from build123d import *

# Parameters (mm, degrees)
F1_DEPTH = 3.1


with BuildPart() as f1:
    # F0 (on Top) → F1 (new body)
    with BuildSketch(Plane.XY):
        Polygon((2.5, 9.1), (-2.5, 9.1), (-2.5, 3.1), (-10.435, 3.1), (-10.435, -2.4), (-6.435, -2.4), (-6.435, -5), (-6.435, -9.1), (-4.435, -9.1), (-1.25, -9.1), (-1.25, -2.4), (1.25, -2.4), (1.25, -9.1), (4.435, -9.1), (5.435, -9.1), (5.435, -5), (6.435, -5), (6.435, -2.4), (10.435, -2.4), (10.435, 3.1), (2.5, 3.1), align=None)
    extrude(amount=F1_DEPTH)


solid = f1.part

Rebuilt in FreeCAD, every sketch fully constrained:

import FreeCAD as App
import Part
import Sketcher
from FreeCAD import Vector
Q = App.Units.Quantity


def add_polygon(sketch, points):
    """Adds a closed chain of lines whose ends are joined by coincident constraints."""
    first, n = sketch.GeometryCount, len(points)
    for a, b in zip(points, points[1:] + points[:1]):
        sketch.addGeometry(Part.LineSegment(App.Vector(*a, 0), App.Vector(*b, 0)), False)
    for i in range(n):
        sketch.addConstraint(Sketcher.Constraint("Coincident", first + i, 2, first + (i + 1) % n, 1))

doc = App.newDocument("Part")
body = doc.addObject("PartDesign::Body", "Body")

# Sketch on XY plane
sketch1 = doc.addObject("Sketcher::SketchObject", "Sketch")
body.addObject(sketch1)
sketch1.AttachmentSupport = (doc.XY_Plane, [""])
sketch1.MapMode = "FlatFace"
add_polygon(sketch1, [(2.5, 9.1), (-2.5, 9.1), (-2.5, 3.1), (-10.4, 3.1), (-10.4, -2.4), (-6.4, -2.4), (-6.4, -9.1), (-1.2, -9.1), (-1.2, -2.4), (1.2, -2.4), (1.2, -9.1), (5.4, -9.1), (5.4, -5), (6.4, -5), (6.4, -2.4), (10.4, -2.4), (10.4, 3.1), (2.5, 3.1)])  # lines 0-17
sketch1.addConstraint(Sketcher.Constraint("Horizontal", 0))
sketch1.addConstraint(Sketcher.Constraint("Vertical", 1))
sketch1.addConstraint(Sketcher.Constraint("Horizontal", 2))
sketch1.addConstraint(Sketcher.Constraint("Vertical", 3))
sketch1.addConstraint(Sketcher.Constraint("Horizontal", 4))
sketch1.addConstraint(Sketcher.Constraint("Vertical", 5))
sketch1.addConstraint(Sketcher.Constraint("Horizontal", 6))
sketch1.addConstraint(Sketcher.Constraint("Vertical", 7))
sketch1.addConstraint(Sketcher.Constraint("Horizontal", 8))
sketch1.addConstraint(Sketcher.Constraint("Vertical", 9))
sketch1.addConstraint(Sketcher.Constraint("Horizontal", 10))
sketch1.addConstraint(Sketcher.Constraint("Vertical", 11))
sketch1.addConstraint(Sketcher.Constraint("Horizontal", 12))
sketch1.addConstraint(Sketcher.Constraint("Vertical", 13))
sketch1.addConstraint(Sketcher.Constraint("Horizontal", 14))
sketch1.addConstraint(Sketcher.Constraint("Vertical", 15))
sketch1.addConstraint(Sketcher.Constraint("Horizontal", 16))
sketch1.addConstraint(Sketcher.Constraint("Vertical", 17))
sketch1.addConstraint(Sketcher.Constraint("Symmetric", 6, 2, 9, 2, -2))
sketch1.addConstraint(Sketcher.Constraint("Symmetric", 4, 2, 13, 2, -2))
sketch1.addConstraint(Sketcher.Constraint("Symmetric", 2, 2, 15, 2, -2))
sketch1.addConstraint(Sketcher.Constraint("Horizontal", 4, 2, 7, 2))
sketch1.addConstraint(Sketcher.Constraint("Equal", 2, 16))
sketch1.addConstraint(Sketcher.Constraint("DistanceX", 0, 2, 0, 1, Q("5 mm")))
sketch1.addConstraint(Sketcher.Constraint("DistanceX", 4, 1, 4, 2, Q("4 mm")))
sketch1.addConstraint(Sketcher.Constraint("DistanceX", 12, 1, 12, 2, Q("1 mm")))
sketch1.addConstraint(Sketcher.Constraint("DistanceY", 1, 2, 1, 1, Q("6 mm")))
sketch1.addConstraint(Sketcher.Constraint("DistanceX", 8, 1, 8, 2, Q("2.5 mm")))
sketch1.addConstraint(Sketcher.Constraint("DistanceY", 3, 2, 3, 1, Q("5.5 mm")))
sketch1.addConstraint(Sketcher.Constraint("DistanceY", 5, 2, 5, 1, Q("6.7 mm")))
sketch1.addConstraint(Sketcher.Constraint("DistanceY", 11, 1, 11, 2, Q("4.1 mm")))
sketch1.addConstraint(Sketcher.Constraint("DistanceY", 11, 2, -1, 1, Q("5 mm")))
sketch1.addConstraint(Sketcher.Constraint("DistanceX", 2, 2, 2, 1, Q("7.935 mm")))
pad1 = doc.addObject("PartDesign::Pad", "Pad")
body.addObject(pad1)
pad1.Profile = sketch1
pad1.Length = 3.1

doc.recompute()
